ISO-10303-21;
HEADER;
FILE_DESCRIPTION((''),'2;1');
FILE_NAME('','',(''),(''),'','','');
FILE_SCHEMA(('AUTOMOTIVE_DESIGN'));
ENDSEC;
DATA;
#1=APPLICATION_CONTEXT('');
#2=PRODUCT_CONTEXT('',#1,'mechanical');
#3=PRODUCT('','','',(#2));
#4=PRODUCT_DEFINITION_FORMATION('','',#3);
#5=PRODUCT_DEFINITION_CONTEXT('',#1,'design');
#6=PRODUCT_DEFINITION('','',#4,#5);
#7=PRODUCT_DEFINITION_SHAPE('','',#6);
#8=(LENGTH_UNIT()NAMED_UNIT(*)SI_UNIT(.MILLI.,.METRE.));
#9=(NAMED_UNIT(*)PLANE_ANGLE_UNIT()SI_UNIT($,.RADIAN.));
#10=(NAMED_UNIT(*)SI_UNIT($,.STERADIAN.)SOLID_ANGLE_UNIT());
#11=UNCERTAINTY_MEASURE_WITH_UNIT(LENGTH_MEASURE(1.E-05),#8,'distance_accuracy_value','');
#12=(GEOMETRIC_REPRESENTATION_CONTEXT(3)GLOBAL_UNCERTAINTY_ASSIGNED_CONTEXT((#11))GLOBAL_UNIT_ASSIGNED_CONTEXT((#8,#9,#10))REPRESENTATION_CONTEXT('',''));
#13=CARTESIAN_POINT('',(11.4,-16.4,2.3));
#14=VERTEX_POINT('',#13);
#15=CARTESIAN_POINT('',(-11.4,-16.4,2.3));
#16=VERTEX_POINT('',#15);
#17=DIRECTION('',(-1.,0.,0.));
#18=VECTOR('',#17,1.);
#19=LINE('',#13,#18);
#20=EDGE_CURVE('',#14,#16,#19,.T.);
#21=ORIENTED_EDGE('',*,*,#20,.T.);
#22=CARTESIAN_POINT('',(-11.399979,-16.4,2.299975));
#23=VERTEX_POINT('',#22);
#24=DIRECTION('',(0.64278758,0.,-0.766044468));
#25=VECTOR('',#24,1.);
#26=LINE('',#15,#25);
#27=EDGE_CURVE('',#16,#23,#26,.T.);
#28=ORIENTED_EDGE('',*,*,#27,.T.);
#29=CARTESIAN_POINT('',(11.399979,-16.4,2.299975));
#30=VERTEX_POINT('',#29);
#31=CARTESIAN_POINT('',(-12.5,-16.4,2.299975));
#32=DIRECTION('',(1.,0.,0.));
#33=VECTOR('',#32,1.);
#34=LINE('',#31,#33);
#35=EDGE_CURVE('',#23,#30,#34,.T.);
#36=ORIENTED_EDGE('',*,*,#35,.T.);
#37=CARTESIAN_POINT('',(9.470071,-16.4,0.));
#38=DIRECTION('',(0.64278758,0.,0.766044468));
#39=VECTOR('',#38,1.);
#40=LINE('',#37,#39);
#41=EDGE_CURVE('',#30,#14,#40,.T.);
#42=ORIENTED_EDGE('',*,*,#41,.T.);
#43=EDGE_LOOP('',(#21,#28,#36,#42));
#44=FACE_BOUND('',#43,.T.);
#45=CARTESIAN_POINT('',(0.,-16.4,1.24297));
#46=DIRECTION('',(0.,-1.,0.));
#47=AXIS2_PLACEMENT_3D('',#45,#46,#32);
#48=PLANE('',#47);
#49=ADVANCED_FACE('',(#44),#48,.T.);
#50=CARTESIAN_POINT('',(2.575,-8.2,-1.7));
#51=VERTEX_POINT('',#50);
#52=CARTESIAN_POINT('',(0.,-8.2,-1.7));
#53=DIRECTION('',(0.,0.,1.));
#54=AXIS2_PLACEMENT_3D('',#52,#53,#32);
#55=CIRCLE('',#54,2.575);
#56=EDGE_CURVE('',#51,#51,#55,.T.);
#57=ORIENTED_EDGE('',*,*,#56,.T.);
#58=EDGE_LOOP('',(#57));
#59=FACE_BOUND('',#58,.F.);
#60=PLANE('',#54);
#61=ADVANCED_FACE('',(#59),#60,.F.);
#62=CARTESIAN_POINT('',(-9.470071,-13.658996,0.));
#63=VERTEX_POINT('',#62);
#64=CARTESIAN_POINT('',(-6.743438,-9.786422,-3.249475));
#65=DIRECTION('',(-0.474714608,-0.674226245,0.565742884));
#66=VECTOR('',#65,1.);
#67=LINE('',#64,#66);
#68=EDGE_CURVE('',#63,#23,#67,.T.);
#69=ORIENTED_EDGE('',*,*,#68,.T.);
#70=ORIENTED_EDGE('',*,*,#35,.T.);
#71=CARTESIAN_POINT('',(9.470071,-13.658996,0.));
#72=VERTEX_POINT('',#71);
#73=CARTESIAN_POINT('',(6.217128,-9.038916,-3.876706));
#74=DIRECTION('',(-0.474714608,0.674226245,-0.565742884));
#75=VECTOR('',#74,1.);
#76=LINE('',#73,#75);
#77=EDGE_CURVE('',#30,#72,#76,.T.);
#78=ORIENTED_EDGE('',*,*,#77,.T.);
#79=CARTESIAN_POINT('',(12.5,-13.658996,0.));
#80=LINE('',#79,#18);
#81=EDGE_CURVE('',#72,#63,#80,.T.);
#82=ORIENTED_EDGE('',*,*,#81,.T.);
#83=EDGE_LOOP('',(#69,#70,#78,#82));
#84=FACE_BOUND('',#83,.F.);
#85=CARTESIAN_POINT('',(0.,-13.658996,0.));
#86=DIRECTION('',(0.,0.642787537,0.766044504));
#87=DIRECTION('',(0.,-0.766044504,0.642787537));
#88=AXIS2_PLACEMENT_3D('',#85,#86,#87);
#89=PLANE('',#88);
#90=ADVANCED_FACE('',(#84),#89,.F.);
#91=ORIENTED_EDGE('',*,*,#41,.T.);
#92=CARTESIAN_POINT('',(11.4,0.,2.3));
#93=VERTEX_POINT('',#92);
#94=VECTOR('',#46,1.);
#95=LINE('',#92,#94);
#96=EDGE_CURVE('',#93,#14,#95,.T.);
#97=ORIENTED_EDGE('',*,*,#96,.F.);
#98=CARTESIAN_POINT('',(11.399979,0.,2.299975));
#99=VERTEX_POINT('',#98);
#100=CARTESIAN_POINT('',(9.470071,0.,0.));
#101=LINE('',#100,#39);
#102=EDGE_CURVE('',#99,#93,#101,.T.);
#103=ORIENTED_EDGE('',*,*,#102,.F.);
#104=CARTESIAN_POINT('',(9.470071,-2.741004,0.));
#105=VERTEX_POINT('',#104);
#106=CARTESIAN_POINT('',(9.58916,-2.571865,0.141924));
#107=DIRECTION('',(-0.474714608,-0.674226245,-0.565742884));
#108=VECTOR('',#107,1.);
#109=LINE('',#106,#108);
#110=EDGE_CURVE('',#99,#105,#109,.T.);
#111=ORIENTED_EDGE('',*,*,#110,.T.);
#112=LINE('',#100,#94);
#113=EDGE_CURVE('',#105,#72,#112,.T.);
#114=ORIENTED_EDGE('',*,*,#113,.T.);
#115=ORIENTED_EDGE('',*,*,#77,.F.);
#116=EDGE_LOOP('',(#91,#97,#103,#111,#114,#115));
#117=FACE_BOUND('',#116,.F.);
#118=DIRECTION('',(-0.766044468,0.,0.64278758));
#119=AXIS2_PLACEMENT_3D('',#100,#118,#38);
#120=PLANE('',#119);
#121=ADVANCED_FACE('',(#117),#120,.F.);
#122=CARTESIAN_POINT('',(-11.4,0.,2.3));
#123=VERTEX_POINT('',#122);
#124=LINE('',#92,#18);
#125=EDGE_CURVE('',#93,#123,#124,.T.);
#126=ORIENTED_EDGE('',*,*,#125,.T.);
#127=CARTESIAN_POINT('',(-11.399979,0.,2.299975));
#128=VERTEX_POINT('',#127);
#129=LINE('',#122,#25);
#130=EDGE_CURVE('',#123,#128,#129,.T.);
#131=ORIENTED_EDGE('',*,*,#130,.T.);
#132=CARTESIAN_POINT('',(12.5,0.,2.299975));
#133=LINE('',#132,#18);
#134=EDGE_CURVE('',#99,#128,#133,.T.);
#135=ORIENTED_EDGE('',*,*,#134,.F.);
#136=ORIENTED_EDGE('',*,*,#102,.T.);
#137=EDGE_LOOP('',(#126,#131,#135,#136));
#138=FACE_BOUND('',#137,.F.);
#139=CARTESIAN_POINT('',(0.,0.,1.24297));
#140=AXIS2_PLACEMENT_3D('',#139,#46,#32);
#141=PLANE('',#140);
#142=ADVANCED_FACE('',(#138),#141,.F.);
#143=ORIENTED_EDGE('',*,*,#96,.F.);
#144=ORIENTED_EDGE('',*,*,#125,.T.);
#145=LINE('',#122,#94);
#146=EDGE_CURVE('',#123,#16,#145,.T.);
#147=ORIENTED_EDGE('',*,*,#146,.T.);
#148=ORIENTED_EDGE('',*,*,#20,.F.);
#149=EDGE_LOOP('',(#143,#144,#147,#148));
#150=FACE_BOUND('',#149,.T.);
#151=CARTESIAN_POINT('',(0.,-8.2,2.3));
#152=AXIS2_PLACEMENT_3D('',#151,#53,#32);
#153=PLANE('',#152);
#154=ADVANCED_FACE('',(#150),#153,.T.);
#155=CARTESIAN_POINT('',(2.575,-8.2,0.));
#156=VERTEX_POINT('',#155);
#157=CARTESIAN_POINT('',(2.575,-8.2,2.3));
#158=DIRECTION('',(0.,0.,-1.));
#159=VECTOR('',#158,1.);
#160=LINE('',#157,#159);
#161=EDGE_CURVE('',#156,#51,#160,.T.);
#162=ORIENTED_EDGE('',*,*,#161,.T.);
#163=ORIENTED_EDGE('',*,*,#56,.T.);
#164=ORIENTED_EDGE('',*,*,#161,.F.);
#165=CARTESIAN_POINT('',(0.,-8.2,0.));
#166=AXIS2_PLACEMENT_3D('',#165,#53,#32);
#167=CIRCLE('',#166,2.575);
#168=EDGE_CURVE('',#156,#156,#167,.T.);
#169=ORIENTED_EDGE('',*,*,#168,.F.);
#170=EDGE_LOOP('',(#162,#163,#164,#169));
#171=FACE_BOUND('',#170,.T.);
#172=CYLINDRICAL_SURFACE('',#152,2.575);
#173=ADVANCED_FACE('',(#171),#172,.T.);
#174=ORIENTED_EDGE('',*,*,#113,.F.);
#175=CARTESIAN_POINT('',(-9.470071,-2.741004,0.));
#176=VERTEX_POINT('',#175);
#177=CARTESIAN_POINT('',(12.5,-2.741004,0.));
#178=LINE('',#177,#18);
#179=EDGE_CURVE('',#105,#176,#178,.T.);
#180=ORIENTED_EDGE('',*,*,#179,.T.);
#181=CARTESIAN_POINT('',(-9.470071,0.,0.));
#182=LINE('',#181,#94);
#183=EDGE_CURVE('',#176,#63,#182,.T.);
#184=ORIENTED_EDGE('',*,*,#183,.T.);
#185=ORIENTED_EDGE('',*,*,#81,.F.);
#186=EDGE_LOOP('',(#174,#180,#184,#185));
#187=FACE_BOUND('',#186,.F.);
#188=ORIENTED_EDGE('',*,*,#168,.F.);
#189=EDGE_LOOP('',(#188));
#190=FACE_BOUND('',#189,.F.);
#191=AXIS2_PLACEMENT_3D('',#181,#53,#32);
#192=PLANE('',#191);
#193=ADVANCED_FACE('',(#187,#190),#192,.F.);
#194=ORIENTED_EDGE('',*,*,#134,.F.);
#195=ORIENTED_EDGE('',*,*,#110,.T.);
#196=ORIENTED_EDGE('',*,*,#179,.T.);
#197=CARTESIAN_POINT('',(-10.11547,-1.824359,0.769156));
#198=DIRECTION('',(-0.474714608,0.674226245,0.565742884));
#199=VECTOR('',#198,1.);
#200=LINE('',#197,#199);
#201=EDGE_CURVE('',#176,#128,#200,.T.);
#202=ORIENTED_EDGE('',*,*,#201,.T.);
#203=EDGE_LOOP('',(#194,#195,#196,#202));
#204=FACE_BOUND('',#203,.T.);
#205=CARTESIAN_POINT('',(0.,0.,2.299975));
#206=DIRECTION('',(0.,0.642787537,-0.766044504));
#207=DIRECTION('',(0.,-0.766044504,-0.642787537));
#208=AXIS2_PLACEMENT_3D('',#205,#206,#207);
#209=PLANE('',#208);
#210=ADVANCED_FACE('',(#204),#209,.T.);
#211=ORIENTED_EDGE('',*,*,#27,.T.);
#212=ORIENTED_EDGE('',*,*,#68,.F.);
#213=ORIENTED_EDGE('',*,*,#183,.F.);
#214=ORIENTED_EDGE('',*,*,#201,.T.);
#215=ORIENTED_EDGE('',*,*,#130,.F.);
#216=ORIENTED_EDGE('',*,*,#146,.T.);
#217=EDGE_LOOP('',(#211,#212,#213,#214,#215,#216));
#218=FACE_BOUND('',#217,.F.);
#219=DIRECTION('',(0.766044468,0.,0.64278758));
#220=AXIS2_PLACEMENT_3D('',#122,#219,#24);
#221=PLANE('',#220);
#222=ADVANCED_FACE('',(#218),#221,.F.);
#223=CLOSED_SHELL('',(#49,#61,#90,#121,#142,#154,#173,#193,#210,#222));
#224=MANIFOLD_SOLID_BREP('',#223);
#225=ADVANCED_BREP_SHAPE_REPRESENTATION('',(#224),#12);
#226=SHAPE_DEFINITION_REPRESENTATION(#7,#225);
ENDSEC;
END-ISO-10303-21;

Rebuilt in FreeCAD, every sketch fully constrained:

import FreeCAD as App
import Part
import Sketcher
Q = App.Units.Quantity


def add_polygon(sketch, points):
    """Adds a closed chain of lines whose ends are joined by coincident constraints."""
    first, n = sketch.GeometryCount, len(points)
    for a, b in zip(points, points[1:] + points[:1]):
        sketch.addGeometry(Part.LineSegment(App.Vector(*a, 0), App.Vector(*b, 0)), False)
    for i in range(n):
        sketch.addConstraint(Sketcher.Constraint("Coincident", first + i, 2, first + (i + 1) % n, 1))

doc = App.newDocument("Part")
body = doc.addObject("PartDesign::Body", "Body")

# Sketch on XZ plane
sketch1 = body.newObject("Sketcher::SketchObject", "Sketch")
sketch1.AttachmentSupport = (doc.getObject("XZ_Plane"), [""])
sketch1.MapMode = "FlatFace"
add_polygon(sketch1, [(-9.470071, 0), (9.470071, 0), (11.4, 2.3), (-11.4, 2.3)])  # lines 0-3
sketch1.addConstraint([
    Sketcher.Constraint("Horizontal", 0),
    Sketcher.Constraint("Horizontal", 2),
    Sketcher.Constraint("Symmetric", 0, 2, 3, 2, -1, 1),
    Sketcher.Constraint("Equal", 1, 3),
    Sketcher.Constraint("Angle", 1, Q("50.000002 deg")),
    Sketcher.Constraint("DistanceX", 2, 2, 2, 1, Q("22.8 mm")),
    Sketcher.Constraint("DistanceY", -1, 1, 1, 2, Q("2.3 mm")),
])
pad1 = body.newObject("PartDesign::Pad", "Pad")
pad1.Profile = sketch1
pad1.Length = 16.4

# Sketch on YZ plane
sketch2 = body.newObject("Sketcher::SketchObject", "Sketch001")
sketch2.AttachmentSupport = (doc.getObject("YZ_Plane"), [""])
sketch2.MapMode = "FlatFace"
add_polygon(sketch2, [(-2.741004, 0), (0, 0), (0, 2.299975)])  # lines 0-2
add_polygon(sketch2, [(-13.658996, 0), (-16.4, 2.299975), (-16.4, 0)])  # lines 3-5
sketch2.addConstraint([
    Sketcher.Constraint("Horizontal", 0),
    Sketcher.Constraint("Vertical", 1),
    Sketcher.Constraint("Vertical", 4),
    Sketcher.Constraint("Horizontal", 5),
    Sketcher.Constraint("Coincident", 0, 2, -1, 1),
    Sketcher.Constraint("PointOnObject", 4, 2, -1),
    Sketcher.Constraint("Horizontal", 1, 2, 3, 2),
    Sketcher.Constraint("Equal", 0, 5),
    Sketcher.Constraint("Angle", 2, Q("-140.000005 deg")),
    Sketcher.Constraint("DistanceX", 3, 2, -1, 1, Q("16.4 mm")),
    Sketcher.Constraint("DistanceX", 0, 1, 0, 2, Q("2.741004 mm")),
])
pocket1 = body.newObject("PartDesign::Pocket", "Pocket")
pocket1.Profile = sketch2
pocket1.Length = 25
pocket1.Midplane = True

# Sketch on XY plane
sketch3 = body.newObject("Sketcher::SketchObject", "Sketch002")
sketch3.AttachmentSupport = (doc.getObject("XY_Plane"), [""])
sketch3.MapMode = "FlatFace"
sketch3.AttachmentOffset = App.Placement(App.Vector(0, 0, 2.3), App.Rotation())
sketch3.addGeometry(Part.Circle(App.Vector(0, -8.2, 0), App.Vector(0, 0, 1), 2.575), False)
sketch3.addConstraint([
    Sketcher.Constraint("PointOnObject", 0, 3, -2),
    Sketcher.Constraint("Diameter", 0, Q("5.15 mm")),
    Sketcher.Constraint("DistanceY", 0, 3, -1, 1, Q("8.2 mm")),
])
pad2 = body.newObject("PartDesign::Pad", "Pad001")
pad2.Profile = sketch3
pad2.Length = 4
pad2.Reversed = True

doc.recompute()
